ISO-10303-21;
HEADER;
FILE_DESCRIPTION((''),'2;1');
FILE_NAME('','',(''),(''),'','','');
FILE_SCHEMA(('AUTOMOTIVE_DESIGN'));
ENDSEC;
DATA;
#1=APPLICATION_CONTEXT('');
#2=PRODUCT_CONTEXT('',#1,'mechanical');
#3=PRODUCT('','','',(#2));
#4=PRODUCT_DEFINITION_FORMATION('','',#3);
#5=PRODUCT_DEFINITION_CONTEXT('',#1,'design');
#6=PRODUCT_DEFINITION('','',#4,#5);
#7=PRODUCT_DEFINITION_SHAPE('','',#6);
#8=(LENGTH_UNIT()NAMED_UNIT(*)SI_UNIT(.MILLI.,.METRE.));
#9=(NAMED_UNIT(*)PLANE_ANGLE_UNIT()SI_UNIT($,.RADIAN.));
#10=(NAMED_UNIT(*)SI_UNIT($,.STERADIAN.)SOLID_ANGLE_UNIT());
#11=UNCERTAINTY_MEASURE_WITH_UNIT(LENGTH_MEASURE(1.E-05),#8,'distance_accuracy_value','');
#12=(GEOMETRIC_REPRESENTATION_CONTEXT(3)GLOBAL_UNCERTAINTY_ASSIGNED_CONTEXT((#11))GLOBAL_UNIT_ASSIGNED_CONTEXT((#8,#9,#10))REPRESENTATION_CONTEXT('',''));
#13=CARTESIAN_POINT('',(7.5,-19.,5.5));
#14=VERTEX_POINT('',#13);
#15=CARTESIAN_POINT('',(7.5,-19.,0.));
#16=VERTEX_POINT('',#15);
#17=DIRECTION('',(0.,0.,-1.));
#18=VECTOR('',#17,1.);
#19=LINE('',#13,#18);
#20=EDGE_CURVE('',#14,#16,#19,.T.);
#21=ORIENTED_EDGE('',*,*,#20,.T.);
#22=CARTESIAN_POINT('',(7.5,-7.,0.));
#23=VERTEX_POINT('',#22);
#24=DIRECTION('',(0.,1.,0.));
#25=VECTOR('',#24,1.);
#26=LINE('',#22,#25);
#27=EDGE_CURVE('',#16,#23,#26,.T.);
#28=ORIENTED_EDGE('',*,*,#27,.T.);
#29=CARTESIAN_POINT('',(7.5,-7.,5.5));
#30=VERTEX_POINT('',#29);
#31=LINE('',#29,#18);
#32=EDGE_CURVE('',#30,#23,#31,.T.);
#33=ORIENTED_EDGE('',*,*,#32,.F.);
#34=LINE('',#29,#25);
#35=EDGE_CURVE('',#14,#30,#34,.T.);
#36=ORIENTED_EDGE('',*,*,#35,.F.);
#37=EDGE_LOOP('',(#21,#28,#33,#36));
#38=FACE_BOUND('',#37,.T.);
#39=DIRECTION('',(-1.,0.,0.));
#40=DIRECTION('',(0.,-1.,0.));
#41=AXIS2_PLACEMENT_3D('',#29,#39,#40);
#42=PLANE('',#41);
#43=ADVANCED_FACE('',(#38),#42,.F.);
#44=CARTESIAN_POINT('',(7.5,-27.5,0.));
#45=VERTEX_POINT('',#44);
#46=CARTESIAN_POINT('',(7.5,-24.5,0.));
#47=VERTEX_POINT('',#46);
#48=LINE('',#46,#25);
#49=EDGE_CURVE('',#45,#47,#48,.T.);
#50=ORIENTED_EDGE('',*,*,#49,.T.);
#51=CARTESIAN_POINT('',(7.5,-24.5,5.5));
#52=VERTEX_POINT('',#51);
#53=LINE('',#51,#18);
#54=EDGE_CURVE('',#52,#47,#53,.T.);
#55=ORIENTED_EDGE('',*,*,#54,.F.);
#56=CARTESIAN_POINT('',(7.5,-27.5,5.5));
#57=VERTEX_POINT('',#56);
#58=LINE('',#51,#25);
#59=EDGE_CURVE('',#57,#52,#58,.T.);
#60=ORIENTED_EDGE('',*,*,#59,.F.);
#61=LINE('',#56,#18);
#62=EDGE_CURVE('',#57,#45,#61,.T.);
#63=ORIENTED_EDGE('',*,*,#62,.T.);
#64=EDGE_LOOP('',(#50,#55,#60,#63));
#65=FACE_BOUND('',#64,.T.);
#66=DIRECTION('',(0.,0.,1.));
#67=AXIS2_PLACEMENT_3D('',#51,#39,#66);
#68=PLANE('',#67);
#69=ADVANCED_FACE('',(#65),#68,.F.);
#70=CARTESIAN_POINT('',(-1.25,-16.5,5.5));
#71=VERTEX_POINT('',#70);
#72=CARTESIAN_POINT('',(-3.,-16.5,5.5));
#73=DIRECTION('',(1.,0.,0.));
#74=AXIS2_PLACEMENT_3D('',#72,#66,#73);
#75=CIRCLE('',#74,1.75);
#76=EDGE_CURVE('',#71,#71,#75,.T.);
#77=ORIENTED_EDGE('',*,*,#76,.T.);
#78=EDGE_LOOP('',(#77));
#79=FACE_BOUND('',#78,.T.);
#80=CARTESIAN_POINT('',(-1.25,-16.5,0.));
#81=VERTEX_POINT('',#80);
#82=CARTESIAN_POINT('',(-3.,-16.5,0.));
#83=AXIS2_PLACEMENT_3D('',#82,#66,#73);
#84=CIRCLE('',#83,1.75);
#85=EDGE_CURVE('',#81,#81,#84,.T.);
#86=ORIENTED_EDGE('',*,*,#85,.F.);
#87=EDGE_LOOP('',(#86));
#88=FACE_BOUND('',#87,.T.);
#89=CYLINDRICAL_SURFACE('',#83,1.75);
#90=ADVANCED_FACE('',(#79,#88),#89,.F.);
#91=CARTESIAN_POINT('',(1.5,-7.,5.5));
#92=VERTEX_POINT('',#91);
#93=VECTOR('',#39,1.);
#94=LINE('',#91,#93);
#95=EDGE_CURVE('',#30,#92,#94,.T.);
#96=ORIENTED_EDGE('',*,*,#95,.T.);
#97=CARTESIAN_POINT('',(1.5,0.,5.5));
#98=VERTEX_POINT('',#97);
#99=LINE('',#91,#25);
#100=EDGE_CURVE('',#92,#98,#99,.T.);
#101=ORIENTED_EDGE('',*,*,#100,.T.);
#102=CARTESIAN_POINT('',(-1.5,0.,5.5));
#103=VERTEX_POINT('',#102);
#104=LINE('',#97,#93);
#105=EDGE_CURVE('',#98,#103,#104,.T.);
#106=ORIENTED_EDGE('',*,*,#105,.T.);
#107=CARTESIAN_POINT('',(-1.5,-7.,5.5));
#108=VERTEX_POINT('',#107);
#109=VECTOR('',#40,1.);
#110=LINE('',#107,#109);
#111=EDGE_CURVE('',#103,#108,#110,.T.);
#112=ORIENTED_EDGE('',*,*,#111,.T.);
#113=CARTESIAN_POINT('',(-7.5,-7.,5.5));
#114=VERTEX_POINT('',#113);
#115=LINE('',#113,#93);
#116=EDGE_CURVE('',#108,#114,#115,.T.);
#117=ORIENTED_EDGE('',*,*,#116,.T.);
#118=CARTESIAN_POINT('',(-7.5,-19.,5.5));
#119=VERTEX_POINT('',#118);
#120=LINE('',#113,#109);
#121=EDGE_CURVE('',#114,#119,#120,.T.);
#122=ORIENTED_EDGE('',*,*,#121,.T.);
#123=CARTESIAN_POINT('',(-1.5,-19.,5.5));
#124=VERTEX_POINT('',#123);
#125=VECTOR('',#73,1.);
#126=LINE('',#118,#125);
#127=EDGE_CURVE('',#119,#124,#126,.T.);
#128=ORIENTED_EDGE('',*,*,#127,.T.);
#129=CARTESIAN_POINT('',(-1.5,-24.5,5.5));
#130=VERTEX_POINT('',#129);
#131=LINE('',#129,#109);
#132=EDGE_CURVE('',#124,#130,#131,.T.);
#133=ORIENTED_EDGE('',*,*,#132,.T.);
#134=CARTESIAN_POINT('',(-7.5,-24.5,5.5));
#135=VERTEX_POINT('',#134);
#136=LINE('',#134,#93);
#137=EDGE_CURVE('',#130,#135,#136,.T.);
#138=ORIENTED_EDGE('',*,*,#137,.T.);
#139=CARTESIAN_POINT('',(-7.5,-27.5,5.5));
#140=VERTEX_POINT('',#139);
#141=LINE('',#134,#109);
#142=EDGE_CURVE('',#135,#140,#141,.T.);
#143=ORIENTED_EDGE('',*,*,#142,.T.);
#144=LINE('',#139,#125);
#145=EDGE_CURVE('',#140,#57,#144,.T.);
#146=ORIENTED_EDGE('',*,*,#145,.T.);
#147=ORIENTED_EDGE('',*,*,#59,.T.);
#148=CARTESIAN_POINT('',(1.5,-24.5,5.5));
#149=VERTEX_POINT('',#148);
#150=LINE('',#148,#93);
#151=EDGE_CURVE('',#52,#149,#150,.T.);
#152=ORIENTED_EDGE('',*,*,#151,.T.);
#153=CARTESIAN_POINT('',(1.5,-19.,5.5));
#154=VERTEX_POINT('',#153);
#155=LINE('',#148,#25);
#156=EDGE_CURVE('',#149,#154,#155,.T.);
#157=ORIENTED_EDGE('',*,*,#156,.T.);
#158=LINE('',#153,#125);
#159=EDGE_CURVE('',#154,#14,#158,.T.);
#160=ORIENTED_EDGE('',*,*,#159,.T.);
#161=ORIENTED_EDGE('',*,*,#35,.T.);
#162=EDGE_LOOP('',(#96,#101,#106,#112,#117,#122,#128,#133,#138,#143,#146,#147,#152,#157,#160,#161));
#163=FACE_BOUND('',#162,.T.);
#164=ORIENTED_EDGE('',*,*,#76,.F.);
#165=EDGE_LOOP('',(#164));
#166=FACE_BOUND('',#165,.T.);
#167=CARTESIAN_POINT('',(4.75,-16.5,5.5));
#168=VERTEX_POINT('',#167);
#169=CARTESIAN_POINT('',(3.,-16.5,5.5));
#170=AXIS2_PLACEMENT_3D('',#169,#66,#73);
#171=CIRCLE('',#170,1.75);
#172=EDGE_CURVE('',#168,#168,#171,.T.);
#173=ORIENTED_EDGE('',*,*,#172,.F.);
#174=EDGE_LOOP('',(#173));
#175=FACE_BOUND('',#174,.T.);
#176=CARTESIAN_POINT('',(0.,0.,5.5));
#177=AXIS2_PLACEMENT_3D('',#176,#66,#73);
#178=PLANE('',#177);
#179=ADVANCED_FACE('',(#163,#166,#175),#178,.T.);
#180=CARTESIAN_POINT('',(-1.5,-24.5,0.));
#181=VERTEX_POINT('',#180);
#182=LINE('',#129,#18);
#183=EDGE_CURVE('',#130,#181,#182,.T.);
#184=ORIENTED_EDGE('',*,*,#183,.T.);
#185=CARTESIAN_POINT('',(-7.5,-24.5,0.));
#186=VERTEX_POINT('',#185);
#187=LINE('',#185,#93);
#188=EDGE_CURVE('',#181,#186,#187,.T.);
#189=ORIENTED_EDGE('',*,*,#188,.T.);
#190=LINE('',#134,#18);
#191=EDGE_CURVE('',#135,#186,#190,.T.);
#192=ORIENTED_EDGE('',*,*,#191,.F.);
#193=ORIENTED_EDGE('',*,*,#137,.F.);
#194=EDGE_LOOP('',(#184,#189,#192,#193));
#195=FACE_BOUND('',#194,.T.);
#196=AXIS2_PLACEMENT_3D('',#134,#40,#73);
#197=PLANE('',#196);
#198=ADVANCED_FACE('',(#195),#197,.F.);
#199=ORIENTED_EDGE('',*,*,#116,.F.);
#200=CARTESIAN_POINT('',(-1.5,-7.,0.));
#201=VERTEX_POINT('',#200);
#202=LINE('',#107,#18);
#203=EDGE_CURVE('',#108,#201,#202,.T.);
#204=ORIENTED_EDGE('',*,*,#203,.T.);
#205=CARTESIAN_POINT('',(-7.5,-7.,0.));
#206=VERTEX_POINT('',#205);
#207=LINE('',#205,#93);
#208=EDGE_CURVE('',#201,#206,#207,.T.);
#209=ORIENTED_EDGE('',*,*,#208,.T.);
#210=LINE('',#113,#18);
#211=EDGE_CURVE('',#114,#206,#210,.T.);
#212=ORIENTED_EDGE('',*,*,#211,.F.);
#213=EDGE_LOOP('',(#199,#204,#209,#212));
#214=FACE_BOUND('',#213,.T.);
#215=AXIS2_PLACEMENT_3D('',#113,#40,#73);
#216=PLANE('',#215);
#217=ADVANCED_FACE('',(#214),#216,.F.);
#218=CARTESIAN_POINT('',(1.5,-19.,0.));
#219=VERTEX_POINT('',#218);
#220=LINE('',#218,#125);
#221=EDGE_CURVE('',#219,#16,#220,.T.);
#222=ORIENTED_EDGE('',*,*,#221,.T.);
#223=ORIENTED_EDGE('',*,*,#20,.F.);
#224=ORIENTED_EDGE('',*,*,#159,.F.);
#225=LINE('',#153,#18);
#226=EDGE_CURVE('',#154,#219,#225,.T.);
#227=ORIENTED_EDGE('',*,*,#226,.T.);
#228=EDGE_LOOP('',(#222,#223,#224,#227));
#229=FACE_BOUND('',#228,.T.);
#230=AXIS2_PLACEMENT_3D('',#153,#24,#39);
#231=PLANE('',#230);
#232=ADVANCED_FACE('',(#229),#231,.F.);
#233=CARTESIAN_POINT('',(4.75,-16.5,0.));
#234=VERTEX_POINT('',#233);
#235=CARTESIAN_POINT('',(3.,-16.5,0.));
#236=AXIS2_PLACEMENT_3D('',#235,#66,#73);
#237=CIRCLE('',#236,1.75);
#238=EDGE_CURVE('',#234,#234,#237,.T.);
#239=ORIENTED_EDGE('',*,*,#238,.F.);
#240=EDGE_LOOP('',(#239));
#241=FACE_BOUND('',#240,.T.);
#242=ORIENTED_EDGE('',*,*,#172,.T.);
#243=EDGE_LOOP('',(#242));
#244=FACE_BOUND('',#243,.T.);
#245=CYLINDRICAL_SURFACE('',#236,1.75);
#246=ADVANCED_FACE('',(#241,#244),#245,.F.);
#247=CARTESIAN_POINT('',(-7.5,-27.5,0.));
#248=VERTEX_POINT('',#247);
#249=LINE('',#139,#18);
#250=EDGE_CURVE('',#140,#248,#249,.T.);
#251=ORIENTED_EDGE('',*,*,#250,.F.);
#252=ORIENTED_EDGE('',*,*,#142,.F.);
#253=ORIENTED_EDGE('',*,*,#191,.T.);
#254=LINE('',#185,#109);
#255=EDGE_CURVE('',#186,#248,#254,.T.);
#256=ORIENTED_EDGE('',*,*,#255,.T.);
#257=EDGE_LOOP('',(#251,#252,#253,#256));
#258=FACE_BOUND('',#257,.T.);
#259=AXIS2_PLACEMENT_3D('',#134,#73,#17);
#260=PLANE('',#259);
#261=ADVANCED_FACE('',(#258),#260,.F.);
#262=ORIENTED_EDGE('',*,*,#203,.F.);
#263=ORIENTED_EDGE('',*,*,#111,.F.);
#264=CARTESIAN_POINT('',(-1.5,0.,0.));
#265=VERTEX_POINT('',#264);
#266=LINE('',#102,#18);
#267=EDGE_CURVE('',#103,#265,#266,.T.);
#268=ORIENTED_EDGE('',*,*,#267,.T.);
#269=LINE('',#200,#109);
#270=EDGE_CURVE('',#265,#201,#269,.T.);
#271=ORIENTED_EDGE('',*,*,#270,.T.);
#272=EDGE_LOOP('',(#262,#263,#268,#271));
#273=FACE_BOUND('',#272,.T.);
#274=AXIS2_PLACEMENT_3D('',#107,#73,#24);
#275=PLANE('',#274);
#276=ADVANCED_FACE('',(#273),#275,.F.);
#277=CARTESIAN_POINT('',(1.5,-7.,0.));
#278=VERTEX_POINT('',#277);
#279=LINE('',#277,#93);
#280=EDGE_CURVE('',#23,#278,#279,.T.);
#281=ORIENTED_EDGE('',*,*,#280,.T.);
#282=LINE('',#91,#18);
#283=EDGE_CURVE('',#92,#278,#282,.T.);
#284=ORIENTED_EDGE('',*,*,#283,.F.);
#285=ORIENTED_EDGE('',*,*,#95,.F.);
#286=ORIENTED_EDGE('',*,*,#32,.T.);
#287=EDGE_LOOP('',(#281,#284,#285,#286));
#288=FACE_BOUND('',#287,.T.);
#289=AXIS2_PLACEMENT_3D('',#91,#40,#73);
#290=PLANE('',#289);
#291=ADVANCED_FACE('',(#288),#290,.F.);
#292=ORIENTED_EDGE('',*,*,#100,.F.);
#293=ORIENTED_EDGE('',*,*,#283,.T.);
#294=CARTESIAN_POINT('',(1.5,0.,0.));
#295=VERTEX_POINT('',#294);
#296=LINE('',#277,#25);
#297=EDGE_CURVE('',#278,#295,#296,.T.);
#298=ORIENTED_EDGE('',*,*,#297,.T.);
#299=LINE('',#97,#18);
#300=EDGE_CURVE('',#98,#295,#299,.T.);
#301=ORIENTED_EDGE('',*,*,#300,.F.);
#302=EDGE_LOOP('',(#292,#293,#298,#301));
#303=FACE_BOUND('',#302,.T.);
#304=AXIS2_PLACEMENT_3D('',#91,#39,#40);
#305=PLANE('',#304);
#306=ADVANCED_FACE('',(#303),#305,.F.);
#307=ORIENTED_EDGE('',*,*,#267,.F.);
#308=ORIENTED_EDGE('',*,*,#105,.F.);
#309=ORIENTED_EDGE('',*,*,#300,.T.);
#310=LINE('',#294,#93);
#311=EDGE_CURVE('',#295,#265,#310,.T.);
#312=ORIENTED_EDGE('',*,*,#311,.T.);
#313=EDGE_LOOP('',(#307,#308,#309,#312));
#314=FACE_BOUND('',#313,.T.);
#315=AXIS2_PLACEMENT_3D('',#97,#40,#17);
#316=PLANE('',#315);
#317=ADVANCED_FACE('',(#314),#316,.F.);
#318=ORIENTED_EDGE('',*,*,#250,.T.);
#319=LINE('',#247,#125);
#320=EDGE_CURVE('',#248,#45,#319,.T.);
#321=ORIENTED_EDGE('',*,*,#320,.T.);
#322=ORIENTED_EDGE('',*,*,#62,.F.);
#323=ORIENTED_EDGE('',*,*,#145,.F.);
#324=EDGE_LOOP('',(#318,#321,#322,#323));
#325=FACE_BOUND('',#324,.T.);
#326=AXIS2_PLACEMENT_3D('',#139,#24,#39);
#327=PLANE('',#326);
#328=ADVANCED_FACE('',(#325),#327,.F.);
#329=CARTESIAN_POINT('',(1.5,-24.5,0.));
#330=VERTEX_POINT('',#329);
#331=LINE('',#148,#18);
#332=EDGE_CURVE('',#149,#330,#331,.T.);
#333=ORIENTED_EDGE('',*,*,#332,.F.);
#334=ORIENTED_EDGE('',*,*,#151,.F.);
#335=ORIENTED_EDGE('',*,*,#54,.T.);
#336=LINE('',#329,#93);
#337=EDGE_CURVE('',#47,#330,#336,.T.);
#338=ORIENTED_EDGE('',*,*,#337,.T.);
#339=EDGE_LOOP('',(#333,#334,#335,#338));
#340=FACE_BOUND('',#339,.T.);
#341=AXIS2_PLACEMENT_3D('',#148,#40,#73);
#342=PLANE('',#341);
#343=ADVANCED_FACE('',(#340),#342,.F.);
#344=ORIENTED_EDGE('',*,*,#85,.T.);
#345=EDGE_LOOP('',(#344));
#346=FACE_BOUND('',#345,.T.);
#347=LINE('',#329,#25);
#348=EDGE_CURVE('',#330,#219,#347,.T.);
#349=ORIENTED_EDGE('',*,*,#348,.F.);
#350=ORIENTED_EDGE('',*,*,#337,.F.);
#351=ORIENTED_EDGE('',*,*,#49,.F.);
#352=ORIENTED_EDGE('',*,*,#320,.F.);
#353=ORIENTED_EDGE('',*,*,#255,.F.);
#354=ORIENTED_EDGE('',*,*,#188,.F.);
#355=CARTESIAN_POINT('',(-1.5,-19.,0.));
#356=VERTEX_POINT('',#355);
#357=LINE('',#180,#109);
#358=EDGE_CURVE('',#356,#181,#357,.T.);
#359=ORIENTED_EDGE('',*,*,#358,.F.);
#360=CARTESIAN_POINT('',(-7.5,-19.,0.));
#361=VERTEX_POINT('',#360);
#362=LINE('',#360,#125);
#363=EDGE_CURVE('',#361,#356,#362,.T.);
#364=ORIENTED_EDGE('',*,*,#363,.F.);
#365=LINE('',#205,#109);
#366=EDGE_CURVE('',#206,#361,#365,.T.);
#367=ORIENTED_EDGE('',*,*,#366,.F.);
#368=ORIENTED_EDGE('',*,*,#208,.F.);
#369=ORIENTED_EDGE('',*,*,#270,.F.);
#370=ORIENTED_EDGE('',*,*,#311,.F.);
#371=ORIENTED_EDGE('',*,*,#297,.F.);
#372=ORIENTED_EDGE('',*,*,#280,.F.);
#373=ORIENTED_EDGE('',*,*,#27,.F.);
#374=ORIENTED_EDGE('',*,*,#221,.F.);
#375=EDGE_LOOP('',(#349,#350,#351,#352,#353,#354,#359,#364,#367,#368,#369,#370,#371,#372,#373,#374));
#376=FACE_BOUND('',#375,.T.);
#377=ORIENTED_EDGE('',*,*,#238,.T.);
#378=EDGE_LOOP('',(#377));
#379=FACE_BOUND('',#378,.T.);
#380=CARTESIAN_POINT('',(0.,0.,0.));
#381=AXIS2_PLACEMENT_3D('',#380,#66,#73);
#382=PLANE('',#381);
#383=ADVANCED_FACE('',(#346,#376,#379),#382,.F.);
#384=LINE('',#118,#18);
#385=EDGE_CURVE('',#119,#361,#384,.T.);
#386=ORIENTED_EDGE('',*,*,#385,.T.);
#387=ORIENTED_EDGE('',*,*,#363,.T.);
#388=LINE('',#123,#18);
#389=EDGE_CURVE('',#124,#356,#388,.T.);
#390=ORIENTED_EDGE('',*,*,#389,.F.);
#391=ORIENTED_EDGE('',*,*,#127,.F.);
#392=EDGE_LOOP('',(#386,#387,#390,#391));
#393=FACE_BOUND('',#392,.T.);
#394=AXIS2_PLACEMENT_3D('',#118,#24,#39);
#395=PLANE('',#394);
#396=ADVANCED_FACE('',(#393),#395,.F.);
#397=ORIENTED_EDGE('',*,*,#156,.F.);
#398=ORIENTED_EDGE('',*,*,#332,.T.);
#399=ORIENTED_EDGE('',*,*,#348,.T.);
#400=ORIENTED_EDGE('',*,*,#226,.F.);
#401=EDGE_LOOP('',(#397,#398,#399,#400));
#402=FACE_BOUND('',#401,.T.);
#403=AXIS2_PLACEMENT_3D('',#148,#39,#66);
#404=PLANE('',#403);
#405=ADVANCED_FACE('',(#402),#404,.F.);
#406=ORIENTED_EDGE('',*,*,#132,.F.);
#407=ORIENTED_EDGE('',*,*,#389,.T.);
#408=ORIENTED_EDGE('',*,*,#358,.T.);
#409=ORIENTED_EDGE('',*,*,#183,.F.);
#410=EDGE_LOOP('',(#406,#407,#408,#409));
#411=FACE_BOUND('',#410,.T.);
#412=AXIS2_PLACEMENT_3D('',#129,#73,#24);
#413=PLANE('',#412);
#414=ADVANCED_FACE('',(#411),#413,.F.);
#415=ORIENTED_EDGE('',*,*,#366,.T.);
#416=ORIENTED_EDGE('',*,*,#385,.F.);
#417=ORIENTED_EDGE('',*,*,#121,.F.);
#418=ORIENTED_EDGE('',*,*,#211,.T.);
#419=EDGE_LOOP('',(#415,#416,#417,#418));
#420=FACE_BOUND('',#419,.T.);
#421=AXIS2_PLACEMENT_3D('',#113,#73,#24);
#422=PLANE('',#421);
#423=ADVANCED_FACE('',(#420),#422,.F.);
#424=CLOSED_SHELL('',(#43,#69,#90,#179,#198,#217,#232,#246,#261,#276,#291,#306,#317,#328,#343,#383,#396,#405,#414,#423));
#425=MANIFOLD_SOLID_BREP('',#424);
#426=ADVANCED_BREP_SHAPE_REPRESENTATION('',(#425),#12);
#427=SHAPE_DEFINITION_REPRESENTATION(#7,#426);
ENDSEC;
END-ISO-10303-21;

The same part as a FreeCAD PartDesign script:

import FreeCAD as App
import Part
import Sketcher
Q = App.Units.Quantity

doc = App.newDocument("Part")
params = doc.addObject("Spreadsheet::Sheet", "Params")
for row, (alias, value) in enumerate([
    ("sketch1_width", "6 mm"),
    ("sketch1_width2", "3 mm"),
    ("sketch1_height", "7 mm"),
    ("sketch1_height2", "12 mm"),
    ("sketch1_height3", "5.5 mm"),
    ("pad1_length", "5.5 mm"),
    ("sketch2_diameter", "3.5 mm"),
], start=1):
    params.set(f"A{row}", alias)
    params.set(f"B{row}", "=" + value)
    params.setAlias(f"B{row}", alias)

body = doc.addObject("PartDesign::Body", "Body")

# Sketch on XY plane
sketch1 = body.newObject("Sketcher::SketchObject", "Sketch")
sketch1.AttachmentSupport = (doc.getObject("XY_Plane"), [""])
sketch1.MapMode = "FlatFace"
sketch1.addGeometry(Part.LineSegment(App.Vector(7.5, -7, 0), App.Vector(1.5, -7, 0)), False)
sketch1.addGeometry(Part.LineSegment(App.Vector(1.5, -7, 0), App.Vector(1.5, 0, 0)), False)
sketch1.addGeometry(Part.LineSegment(App.Vector(1.5, 0, 0), App.Vector(-1.5, 0, 0)), False)
sketch1.addGeometry(Part.LineSegment(App.Vector(-1.5, 0, 0), App.Vector(-1.5, -7, 0)), False)
sketch1.addGeometry(Part.LineSegment(App.Vector(-1.5, -7, 0), App.Vector(-7.5, -7, 0)), False)
sketch1.addGeometry(Part.LineSegment(App.Vector(-7.5, -7, 0), App.Vector(-7.5, -19, 0)), False)
sketch1.addGeometry(Part.LineSegment(App.Vector(-7.5, -19, 0), App.Vector(-1.5, -19, 0)), False)
sketch1.addGeometry(Part.LineSegment(App.Vector(-1.5, -19, 0), App.Vector(-1.5, -24.5, 0)), False)
sketch1.addGeometry(Part.LineSegment(App.Vector(-1.5, -24.5, 0), App.Vector(-7.5, -24.5, 0)), False)
sketch1.addGeometry(Part.LineSegment(App.Vector(-7.5, -24.5, 0), App.Vector(-7.5, -27.5, 0)), False)
sketch1.addGeometry(Part.LineSegment(App.Vector(-7.5, -27.5, 0), App.Vector(7.5, -27.5, 0)), False)
sketch1.addGeometry(Part.LineSegment(App.Vector(7.5, -27.5, 0), App.Vector(7.5, -24.5, 0)), False)
sketch1.addGeometry(Part.LineSegment(App.Vector(7.5, -24.5, 0), App.Vector(1.5, -24.5, 0)), False)
sketch1.addGeometry(Part.LineSegment(App.Vector(1.5, -24.5, 0), App.Vector(1.5, -19, 0)), False)
sketch1.addGeometry(Part.LineSegment(App.Vector(1.5, -19, 0), App.Vector(7.5, -19, 0)), False)
sketch1.addGeometry(Part.LineSegment(App.Vector(7.5, -19, 0), App.Vector(7.5, -7, 0)), False)
sketch1.addConstraint(Sketcher.Constraint("Coincident", 0, 2, 1, 1))
sketch1.addConstraint(Sketcher.Constraint("Coincident", 1, 2, 2, 1))
sketch1.addConstraint(Sketcher.Constraint("Coincident", 2, 2, 3, 1))
sketch1.addConstraint(Sketcher.Constraint("Coincident", 3, 2, 4, 1))
sketch1.addConstraint(Sketcher.Constraint("Coincident", 4, 2, 5, 1))
sketch1.addConstraint(Sketcher.Constraint("Coincident", 5, 2, 6, 1))
sketch1.addConstraint(Sketcher.Constraint("Coincident", 6, 2, 7, 1))
sketch1.addConstraint(Sketcher.Constraint("Coincident", 7, 2, 8, 1))
sketch1.addConstraint(Sketcher.Constraint("Coincident", 8, 2, 9, 1))
sketch1.addConstraint(Sketcher.Constraint("Coincident", 9, 2, 10, 1))
sketch1.addConstraint(Sketcher.Constraint("Coincident", 10, 2, 11, 1))
sketch1.addConstraint(Sketcher.Constraint("Coincident", 11, 2, 12, 1))
sketch1.addConstraint(Sketcher.Constraint("Coincident", 12, 2, 13, 1))
sketch1.addConstraint(Sketcher.Constraint("Coincident", 13, 2, 14, 1))
sketch1.addConstraint(Sketcher.Constraint("Coincident", 14, 2, 15, 1))
sketch1.addConstraint(Sketcher.Constraint("Coincident", 15, 2, 0, 1))
sketch1.addConstraint(Sketcher.Constraint("Horizontal", 0))
sketch1.addConstraint(Sketcher.Constraint("Vertical", 1))
sketch1.addConstraint(Sketcher.Constraint("Horizontal", 2))
sketch1.addConstraint(Sketcher.Constraint("Vertical", 3))
sketch1.addConstraint(Sketcher.Constraint("Horizontal", 4))
sketch1.addConstraint(Sketcher.Constraint("Vertical", 5))
sketch1.addConstraint(Sketcher.Constraint("Horizontal", 6))
sketch1.addConstraint(Sketcher.Constraint("Vertical", 7))
sketch1.addConstraint(Sketcher.Constraint("Horizontal", 8))
sketch1.addConstraint(Sketcher.Constraint("Vertical", 9))
sketch1.addConstraint(Sketcher.Constraint("Horizontal", 10))
sketch1.addConstraint(Sketcher.Constraint("Vertical", 11))
sketch1.addConstraint(Sketcher.Constraint("Horizontal", 12))
sketch1.addConstraint(Sketcher.Constraint("Vertical", 13))
sketch1.addConstraint(Sketcher.Constraint("Horizontal", 14))
sketch1.addConstraint(Sketcher.Constraint("Vertical", 15))
sketch1.addConstraint(Sketcher.Constraint("Symmetric", 1, 2, 2, 2, -1, 1))
sketch1.addConstraint(Sketcher.Constraint("Symmetric", 8, 2, 11, 2, -2))
sketch1.addConstraint(Sketcher.Constraint("Symmetric", 6, 2, 13, 2, -2))
sketch1.addConstraint(Sketcher.Constraint("Symmetric", 4, 2, 15, 2, -2))
sketch1.addConstraint(Sketcher.Constraint("Vertical", 3, 2, 6, 2))
sketch1.addConstraint(Sketcher.Constraint("Vertical", 5, 2, 8, 2))
sketch1.addConstraint(Sketcher.Constraint("Equal", 2, 9))
sketch1.addConstraint(Sketcher.Constraint("DistanceX", 0, 2, 0, 1, Q("6 mm")))
sketch1.addConstraint(Sketcher.Constraint("DistanceX", 2, 2, 2, 1, Q("3 mm")))
sketch1.addConstraint(Sketcher.Constraint("DistanceY", 1, 1, 1, 2, Q("7 mm")))
sketch1.addConstraint(Sketcher.Constraint("DistanceY", 5, 2, 5, 1, Q("12 mm")))
sketch1.addConstraint(Sketcher.Constraint("DistanceY", 7, 2, 7, 1, Q("5.5 mm")))
sketch1.setExpression("Constraints[39]", "Params.sketch1_width")
sketch1.setExpression("Constraints[40]", "Params.sketch1_width2")
sketch1.setExpression("Constraints[41]", "Params.sketch1_height")
sketch1.setExpression("Constraints[42]", "Params.sketch1_height2")
sketch1.setExpression("Constraints[43]", "Params.sketch1_height3")
pad1 = body.newObject("PartDesign::Pad", "Pad")
pad1.Profile = sketch1
pad1.setExpression("Length", "Params.pad1_length")

# Sketch on XY plane
sketch2 = body.newObject("Sketcher::SketchObject", "Sketch001")
sketch2.AttachmentSupport = (doc.getObject("XY_Plane"), [""])
sketch2.MapMode = "FlatFace"
sketch2.AttachmentOffset = App.Placement(App.Vector(0, 0, 5.5), App.Rotation())
sketch2.addGeometry(Part.Circle(App.Vector(-3, -16.5, 0), App.Vector(0, 0, 1), 1.8), False)
sketch2.addGeometry(Part.Circle(App.Vector(3, -16.5, 0), App.Vector(0, 0, 1), 1.8), False)
sketch2.addConstraint(Sketcher.Constraint("Equal", 0, 1))
sketch2.addConstraint(Sketcher.Constraint("Symmetric", 0, 3, 1, 3, -2))
sketch2.addConstraint(Sketcher.Constraint("Diameter", 0, Q("3.5 mm")))
sketch2.addConstraint(Sketcher.Constraint("DistanceX", 0, 3, -1, 1, Q("3 mm")))
sketch2.addConstraint(Sketcher.Constraint("DistanceY", 0, 3, -1, 1, Q("16.5 mm")))
sketch2.setExpression("Constraints[2]", "Params.sketch2_diameter")
pocket1 = body.newObject("PartDesign::Pocket", "Pocket")
pocket1.Profile = sketch2
pocket1.Type = "ThroughAll"

doc.recompute()
